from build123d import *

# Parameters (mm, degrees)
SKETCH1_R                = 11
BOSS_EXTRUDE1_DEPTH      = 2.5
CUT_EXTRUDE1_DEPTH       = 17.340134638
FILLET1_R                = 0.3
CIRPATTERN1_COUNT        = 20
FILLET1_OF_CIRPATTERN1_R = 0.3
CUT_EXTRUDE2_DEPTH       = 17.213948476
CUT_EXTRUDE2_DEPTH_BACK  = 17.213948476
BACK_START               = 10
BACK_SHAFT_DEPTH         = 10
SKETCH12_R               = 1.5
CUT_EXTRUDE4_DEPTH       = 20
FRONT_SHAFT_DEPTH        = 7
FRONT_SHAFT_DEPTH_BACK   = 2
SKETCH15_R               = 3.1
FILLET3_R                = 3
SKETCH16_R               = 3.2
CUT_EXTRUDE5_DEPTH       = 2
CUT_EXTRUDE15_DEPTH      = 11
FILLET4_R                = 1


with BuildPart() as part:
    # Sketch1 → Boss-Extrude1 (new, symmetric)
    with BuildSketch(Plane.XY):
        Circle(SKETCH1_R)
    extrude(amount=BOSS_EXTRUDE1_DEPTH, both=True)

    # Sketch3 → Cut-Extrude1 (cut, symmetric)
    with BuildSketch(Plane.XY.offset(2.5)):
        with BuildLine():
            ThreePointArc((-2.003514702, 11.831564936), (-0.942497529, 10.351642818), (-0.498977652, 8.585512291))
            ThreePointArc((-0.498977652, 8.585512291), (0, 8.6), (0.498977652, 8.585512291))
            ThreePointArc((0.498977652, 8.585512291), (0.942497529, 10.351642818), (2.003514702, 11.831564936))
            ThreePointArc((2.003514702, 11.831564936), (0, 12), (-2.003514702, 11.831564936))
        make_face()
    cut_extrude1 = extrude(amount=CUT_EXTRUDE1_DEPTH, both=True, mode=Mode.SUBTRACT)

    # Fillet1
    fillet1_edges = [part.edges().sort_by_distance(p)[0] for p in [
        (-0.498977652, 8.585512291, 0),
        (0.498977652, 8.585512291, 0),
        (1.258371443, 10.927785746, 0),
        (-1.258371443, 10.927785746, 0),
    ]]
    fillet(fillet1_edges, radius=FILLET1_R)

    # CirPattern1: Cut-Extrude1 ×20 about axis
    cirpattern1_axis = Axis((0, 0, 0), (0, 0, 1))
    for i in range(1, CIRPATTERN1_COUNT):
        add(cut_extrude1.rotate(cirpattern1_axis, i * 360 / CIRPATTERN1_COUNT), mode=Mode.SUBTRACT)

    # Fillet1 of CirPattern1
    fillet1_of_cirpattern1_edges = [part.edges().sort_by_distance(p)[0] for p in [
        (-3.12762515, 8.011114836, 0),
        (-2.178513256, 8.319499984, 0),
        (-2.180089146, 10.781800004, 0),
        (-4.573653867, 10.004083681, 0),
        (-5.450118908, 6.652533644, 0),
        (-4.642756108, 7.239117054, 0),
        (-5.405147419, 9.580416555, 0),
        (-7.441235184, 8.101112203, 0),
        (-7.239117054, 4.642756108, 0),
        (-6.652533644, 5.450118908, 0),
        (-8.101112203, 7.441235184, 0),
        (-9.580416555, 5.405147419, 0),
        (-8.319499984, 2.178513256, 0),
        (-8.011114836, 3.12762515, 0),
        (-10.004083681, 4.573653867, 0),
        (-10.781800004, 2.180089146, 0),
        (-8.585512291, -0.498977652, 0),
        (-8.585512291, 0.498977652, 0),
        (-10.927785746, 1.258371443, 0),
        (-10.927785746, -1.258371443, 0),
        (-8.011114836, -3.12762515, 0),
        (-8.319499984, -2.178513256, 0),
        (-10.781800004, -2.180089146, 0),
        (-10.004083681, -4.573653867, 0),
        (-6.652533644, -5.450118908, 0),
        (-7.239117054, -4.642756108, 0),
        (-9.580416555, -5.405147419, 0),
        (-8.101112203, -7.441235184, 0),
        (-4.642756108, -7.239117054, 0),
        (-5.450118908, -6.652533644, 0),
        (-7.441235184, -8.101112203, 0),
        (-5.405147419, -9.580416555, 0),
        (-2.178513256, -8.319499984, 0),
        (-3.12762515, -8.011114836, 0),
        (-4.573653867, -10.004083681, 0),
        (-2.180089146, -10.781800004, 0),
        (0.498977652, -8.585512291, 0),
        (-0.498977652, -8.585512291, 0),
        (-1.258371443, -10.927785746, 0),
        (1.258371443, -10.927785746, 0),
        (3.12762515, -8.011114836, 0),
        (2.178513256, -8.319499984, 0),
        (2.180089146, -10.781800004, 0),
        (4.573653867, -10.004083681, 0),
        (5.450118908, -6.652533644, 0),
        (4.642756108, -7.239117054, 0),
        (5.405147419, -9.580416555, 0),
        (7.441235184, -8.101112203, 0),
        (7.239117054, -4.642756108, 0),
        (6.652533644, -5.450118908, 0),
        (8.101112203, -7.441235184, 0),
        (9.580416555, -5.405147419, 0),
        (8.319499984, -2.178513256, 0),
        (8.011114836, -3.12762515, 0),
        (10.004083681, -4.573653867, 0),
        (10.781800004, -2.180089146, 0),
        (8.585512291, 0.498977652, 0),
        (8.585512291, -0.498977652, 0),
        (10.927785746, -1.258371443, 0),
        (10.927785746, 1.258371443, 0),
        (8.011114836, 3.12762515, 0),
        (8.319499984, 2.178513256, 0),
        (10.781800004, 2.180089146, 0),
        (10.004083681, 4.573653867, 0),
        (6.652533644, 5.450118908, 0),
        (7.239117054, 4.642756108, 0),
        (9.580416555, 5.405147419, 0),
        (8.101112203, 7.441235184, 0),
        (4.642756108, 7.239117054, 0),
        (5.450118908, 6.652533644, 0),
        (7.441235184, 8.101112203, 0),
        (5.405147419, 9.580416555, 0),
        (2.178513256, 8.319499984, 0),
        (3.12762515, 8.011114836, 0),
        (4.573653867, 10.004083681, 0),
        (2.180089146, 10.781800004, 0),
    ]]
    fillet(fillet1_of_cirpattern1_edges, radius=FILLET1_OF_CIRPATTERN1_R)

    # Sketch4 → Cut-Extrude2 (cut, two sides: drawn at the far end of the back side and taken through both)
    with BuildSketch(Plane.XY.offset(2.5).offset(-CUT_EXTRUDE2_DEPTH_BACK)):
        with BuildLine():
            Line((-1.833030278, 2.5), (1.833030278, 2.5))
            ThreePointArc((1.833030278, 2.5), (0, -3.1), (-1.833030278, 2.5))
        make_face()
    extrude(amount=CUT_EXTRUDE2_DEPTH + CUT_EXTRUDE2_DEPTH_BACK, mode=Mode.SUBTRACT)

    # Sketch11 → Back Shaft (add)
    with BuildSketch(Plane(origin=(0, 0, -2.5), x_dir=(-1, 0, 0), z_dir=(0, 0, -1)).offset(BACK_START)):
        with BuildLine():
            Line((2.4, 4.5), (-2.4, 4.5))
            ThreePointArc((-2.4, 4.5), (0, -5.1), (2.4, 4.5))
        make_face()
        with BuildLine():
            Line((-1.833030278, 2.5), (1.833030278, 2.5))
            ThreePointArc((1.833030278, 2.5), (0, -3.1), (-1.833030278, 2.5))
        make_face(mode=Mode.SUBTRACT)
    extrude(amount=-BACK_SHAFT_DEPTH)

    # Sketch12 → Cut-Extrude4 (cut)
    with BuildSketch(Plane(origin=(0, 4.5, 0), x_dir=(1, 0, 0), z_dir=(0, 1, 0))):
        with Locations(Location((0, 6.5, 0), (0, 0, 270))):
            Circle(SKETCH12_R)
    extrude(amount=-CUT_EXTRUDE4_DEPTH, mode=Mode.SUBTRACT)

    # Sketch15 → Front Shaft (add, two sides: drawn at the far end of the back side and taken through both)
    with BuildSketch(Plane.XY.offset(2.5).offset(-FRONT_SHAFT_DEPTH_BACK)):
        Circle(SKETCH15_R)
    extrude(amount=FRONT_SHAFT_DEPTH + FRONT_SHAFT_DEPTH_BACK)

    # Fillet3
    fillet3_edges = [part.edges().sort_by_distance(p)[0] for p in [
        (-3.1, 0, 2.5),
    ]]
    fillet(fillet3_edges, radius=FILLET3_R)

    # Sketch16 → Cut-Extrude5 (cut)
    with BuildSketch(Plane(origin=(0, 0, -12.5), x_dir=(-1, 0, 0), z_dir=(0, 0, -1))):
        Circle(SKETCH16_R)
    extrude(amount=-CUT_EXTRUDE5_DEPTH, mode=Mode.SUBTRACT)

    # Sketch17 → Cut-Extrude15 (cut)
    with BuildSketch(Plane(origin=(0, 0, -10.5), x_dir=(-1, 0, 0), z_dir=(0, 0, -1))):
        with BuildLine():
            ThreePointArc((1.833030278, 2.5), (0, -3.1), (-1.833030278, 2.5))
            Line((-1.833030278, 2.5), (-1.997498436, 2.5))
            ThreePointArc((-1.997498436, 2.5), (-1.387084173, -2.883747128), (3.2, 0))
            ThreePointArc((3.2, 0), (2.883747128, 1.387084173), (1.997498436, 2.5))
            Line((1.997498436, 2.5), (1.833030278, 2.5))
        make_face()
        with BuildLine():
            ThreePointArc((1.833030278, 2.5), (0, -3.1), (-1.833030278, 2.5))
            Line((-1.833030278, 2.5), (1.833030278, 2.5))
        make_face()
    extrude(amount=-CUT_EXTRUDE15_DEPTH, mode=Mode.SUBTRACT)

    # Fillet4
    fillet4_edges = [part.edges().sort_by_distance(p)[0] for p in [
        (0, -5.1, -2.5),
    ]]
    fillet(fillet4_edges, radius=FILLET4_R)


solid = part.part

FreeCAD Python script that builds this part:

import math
import FreeCAD as App
import Part
import Sketcher

V = App.Vector


def edges_at(feature, points):
    """Names of the edges that pass closest to the given points."""
    edges = feature.Shape.Edges
    near = lambda p: min(range(len(edges)), key=lambda i: edges[i].distToShape(Part.Vertex(*p))[0])
    return sorted({f"Edge{near(p) + 1}" for p in points})

doc = App.newDocument("Part")
body = doc.addObject("PartDesign::Body", "Body")

# Sketch on XY plane
sketch1 = body.newObject("Sketcher::SketchObject", "Sketch")
sketch1.AttachmentSupport = (doc.getObject("XY_Plane"), [""])
sketch1.MapMode = "FlatFace"
sketch1.addGeometry(Part.Circle(V(0, 0, 0), V(0, 0, 1), 11), False)
sketch1.addConstraint(Sketcher.Constraint("Coincident", 0, 3, -1, 1))
sketch1.addConstraint(Sketcher.Constraint("Diameter", 0, 22.0))
pad1 = body.newObject("PartDesign::Pad", "Pad")
pad1.Profile = sketch1
pad1.Length = 5
pad1.Midplane = True

# Sketch on XY plane
sketch2 = body.newObject("Sketcher::SketchObject", "Sketch001")
sketch2.AttachmentSupport = (doc.getObject("XY_Plane"), [""])
sketch2.MapMode = "FlatFace"
sketch2.AttachmentOffset = App.Placement(V(0, 0, 2.5), App.Rotation())
sketch2.addGeometry(Part.ArcOfCircle(Part.Circle(V(-5.4, 8.3, 0), V(0, 0, 1), 4.9), math.radians(3), math.radians(46)), False)
sketch2.addGeometry(Part.ArcOfCircle(Part.Circle(V(0, 0, 0), V(0, 0, 1), 8.6), math.radians(86.67), math.radians(93.33)), False)
sketch2.addGeometry(Part.ArcOfCircle(Part.Circle(V(5.4, 8.3, 0), V(0, 0, 1), 4.9), math.radians(134), math.radians(177)), False)
sketch2.addGeometry(Part.ArcOfCircle(Part.Circle(V(0, 0, 0), V(0, 0, 1), 12), math.radians(80.39), math.radians(99.61)), False)
sketch2.addConstraint(Sketcher.Constraint("Coincident", 0, 1, 1, 2))
sketch2.addConstraint(Sketcher.Constraint("Coincident", 1, 1, 2, 2))
sketch2.addConstraint(Sketcher.Constraint("Coincident", 2, 1, 3, 1))
sketch2.addConstraint(Sketcher.Constraint("Coincident", 3, 2, 0, 2))
sketch2.addConstraint(Sketcher.Constraint("Coincident", 1, 3, -1, 1))
sketch2.addConstraint(Sketcher.Constraint("Coincident", 3, 3, -1, 1))
sketch2.addConstraint(Sketcher.Constraint("Equal", 0, 2))
sketch2.addConstraint(Sketcher.Constraint("Symmetric", 0, 3, 2, 3, -2))
sketch2.addConstraint(Sketcher.Constraint("Radius", 3, 12.0))
sketch2.addConstraint(Sketcher.Constraint("Radius", 1, 8.6))
sketch2.addConstraint(Sketcher.Constraint("Radius", 0, 4.872055))
sketch2.addConstraint(Sketcher.Constraint("DistanceX", 0, 3, 2, 3, 10.72565))
sketch2.addConstraint(Sketcher.Constraint("DistanceY", 0, 3, 0, 1, 0.28268))
pocket1 = body.newObject("PartDesign::Pocket", "Pocket")
pocket1.Profile = sketch2
pocket1.Length = 34.680269
pocket1.Midplane = True
doc.recompute()

fillet = body.newObject("PartDesign::Fillet", "Fillet")
fillet.Base = (pocket1, edges_at(pocket1, [
    (-0.499, 8.586, 0),
    (0.499, 8.586, 0),
    (1.258, 10.928, 0),
    (-1.258, 10.928, 0),
]))
fillet.Radius = 0.3
doc.recompute()

polarpattern = body.newObject("PartDesign::PolarPattern", "PolarPattern")
polarpattern.Originals = [pocket1]
polarpattern.Axis = (doc.getObject("Z_Axis"), [""])
polarpattern.Angle = 360
polarpattern.Occurrences = 20
body.Tip = polarpattern
doc.recompute()

fillet2 = body.newObject("PartDesign::Fillet", "Fillet001")
fillet2.Base = (polarpattern, edges_at(polarpattern, [
    (-3.128, 8.011, 0),
    (-2.179, 8.319, 0),
    (-2.18, 10.782, 0),
    (-4.574, 10.004, 0),
    (-5.45, 6.653, 0),
    (-4.643, 7.239, 0),
    (-5.405, 9.58, 0),
    (-7.441, 8.101, 0),
    (-7.239, 4.643, 0),
    (-6.653, 5.45, 0),
    (-8.101, 7.441, 0),
    (-9.58, 5.405, 0),
    (-8.319, 2.179, 0),
    (-8.011, 3.128, 0),
    (-10.004, 4.574, 0),
    (-10.782, 2.18, 0),
    (-8.586, -0.499, 0),
    (-8.586, 0.499, 0),
    (-10.928, 1.258, 0),
    (-10.928, -1.258, 0),
    (-8.011, -3.128, 0),
    (-8.319, -2.179, 0),
    (-10.782, -2.18, 0),
    (-10.004, -4.574, 0),
    (-6.653, -5.45, 0),
    (-7.239, -4.643, 0),
    (-9.58, -5.405, 0),
    (-8.101, -7.441, 0),
    (-4.643, -7.239, 0),
    (-5.45, -6.653, 0),
    (-7.441, -8.101, 0),
    (-5.405, -9.58, 0),
    (-2.179, -8.319, 0),
    (-3.128, -8.011, 0),
    (-4.574, -10.004, 0),
    (-2.18, -10.782, 0),
    (0.499, -8.586, 0),
    (-0.499, -8.586, 0),
    (-1.258, -10.928, 0),
    (1.258, -10.928, 0),
    (3.128, -8.011, 0),
    (2.179, -8.319, 0),
    (2.18, -10.782, 0),
    (4.574, -10.004, 0),
    (5.45, -6.653, 0),
    (4.643, -7.239, 0),
    (5.405, -9.58, 0),
    (7.441, -8.101, 0),
    (7.239, -4.643, 0),
    (6.653, -5.45, 0),
    (8.101, -7.441, 0),
    (9.58, -5.405, 0),
    (8.319, -2.179, 0),
    (8.011, -3.128, 0),
    (10.004, -4.574, 0),
    (10.782, -2.18, 0),
    (8.586, 0.499, 0),
    (8.586, -0.499, 0),
    (10.928, -1.258, 0),
    (10.928, 1.258, 0),
    (8.011, 3.128, 0),
    (8.319, 2.179, 0),
    (10.782, 2.18, 0),
    (10.004, 4.574, 0),
    (6.653, 5.45, 0),
    (7.239, 4.643, 0),
    (9.58, 5.405, 0),
    (8.101, 7.441, 0),
    (4.643, 7.239, 0),
    (5.45, 6.653, 0),
    (7.441, 8.101, 0),
    (5.405, 9.58, 0),
    (2.179, 8.319, 0),
    (3.128, 8.011, 0),
    (4.574, 10.004, 0),
    (2.18, 10.782, 0),
]))
fillet2.Radius = 0.3

# Sketch on XY plane
sketch3 = body.newObject("Sketcher::SketchObject", "Sketch002")
sketch3.AttachmentSupport = (doc.getObject("XY_Plane"), [""])
sketch3.MapMode = "FlatFace"
sketch3.AttachmentOffset = App.Placement(V(0, 0, 2.5), App.Rotation())
sketch3.addGeometry(Part.LineSegment(V(1.8, 2.5, 0), V(-1.8, 2.5, 0)), False)
sketch3.addGeometry(Part.ArcOfCircle(Part.Circle(V(0, 0, 0), V(0, 0, 1), 3.1), math.radians(126), math.radians(414)), False)
sketch3.addConstraint(Sketcher.Constraint("Coincident", 0, 1, 1, 2))
sketch3.addConstraint(Sketcher.Constraint("Coincident", 1, 1, 0, 2))
sketch3.addConstraint(Sketcher.Constraint("Horizontal", 0))
sketch3.addConstraint(Sketcher.Constraint("Coincident", 1, 3, -1, 1))
sketch3.addConstraint(Sketcher.Constraint("Radius", 1, 3.1))
sketch3.addConstraint(Sketcher.Constraint("DistanceY", -1, 1, 0, 1, 2.5))
pocket2 = body.newObject("PartDesign::Pocket", "Pocket001")
pocket2.Profile = sketch3
pocket2.Type = "ThroughAll"
pocket2.Midplane = True

# Sketch on XY plane
sketch4 = body.newObject("Sketcher::SketchObject", "Sketch003")
sketch4.AttachmentSupport = (doc.getObject("XY_Plane"), [""])
sketch4.MapMode = "FlatFace"
sketch4.AttachmentOffset = App.Placement(V(0, 0, -12.5), App.Rotation())
sketch4.addGeometry(Part.LineSegment(V(-2.4, 4.5, 0), V(2.4, 4.5, 0)), False)
sketch4.addGeometry(Part.ArcOfCircle(Part.Circle(V(0, 0, 0), V(0, 0, 1), 5.1), math.radians(118), math.radians(422)), False)
sketch4.addGeometry(Part.ArcOfCircle(Part.Circle(V(0, 0, 0), V(0, 0, 1), 3.1), math.radians(126), math.radians(414)), False)
sketch4.addGeometry(Part.LineSegment(V(1.8, 2.5, 0), V(-1.8, 2.5, 0)), False)
sketch4.addConstraint(Sketcher.Constraint("Coincident", 0, 1, 1, 1))
sketch4.addConstraint(Sketcher.Constraint("Coincident", 1, 2, 0, 2))
sketch4.addConstraint(Sketcher.Constraint("Coincident", 2, 1, 3, 2))
sketch4.addConstraint(Sketcher.Constraint("Coincident", 3, 1, 2, 2))
sketch4.addConstraint(Sketcher.Constraint("Horizontal", 0))
sketch4.addConstraint(Sketcher.Constraint("Horizontal", 3))
sketch4.addConstraint(Sketcher.Constraint("Coincident", 1, 3, -1, 1))
sketch4.addConstraint(Sketcher.Constraint("Coincident", 2, 3, -1, 1))
sketch4.addConstraint(Sketcher.Constraint("Radius", 1, 5.1))
sketch4.addConstraint(Sketcher.Constraint("Radius", 2, 3.1))
sketch4.addConstraint(Sketcher.Constraint("DistanceX", 0, 1, 0, 2, 4.8))
sketch4.addConstraint(Sketcher.Constraint("DistanceY", 2, 1, 0, 1, 2.0))
pad2 = body.newObject("PartDesign::Pad", "Pad001")
pad2.Profile = sketch4
pad2.Length = 10

# Sketch on XZ plane
sketch5 = body.newObject("Sketcher::SketchObject", "Sketch004")
sketch5.AttachmentSupport = (doc.getObject("XZ_Plane"), [""])
sketch5.MapMode = "FlatFace"
sketch5.AttachmentOffset = App.Placement(V(0, 0, -4.5), App.Rotation())
sketch5.addGeometry(Part.Circle(V(0, -6.5, 0), V(0, 0, 1), 1.5), False)
sketch5.addConstraint(Sketcher.Constraint("PointOnObject", 0, 3, -2))
sketch5.addConstraint(Sketcher.Constraint("Diameter", 0, 3.0))
sketch5.addConstraint(Sketcher.Constraint("DistanceY", 0, 3, -1, 1, 6.5))
pocket3 = body.newObject("PartDesign::Pocket", "Pocket002")
pocket3.Profile = sketch5
pocket3.Length = 20
pocket3.Reversed = True

# Sketch on XY plane
sketch6 = body.newObject("Sketcher::SketchObject", "Sketch005")
sketch6.AttachmentSupport = (doc.getObject("XY_Plane"), [""])
sketch6.MapMode = "FlatFace"
sketch6.AttachmentOffset = App.Placement(V(0, 0, 2.5), App.Rotation())
sketch6.addGeometry(Part.Circle(V(0, 0, 0), V(0, 0, 1), 3.1), False)
sketch6.addConstraint(Sketcher.Constraint("Coincident", 0, 3, -1, 1))
sketch6.addConstraint(Sketcher.Constraint("Diameter", 0, 6.2))
pad3 = body.newObject("PartDesign::Pad", "Pad002")
pad3.Profile = sketch6
pad3.Type = "TwoLengths"
pad3.Length = 7
pad3.Length2 = 2
doc.recompute()

fillet3 = body.newObject("PartDesign::Fillet", "Fillet002")
fillet3.Base = (pad3, edges_at(pad3, [(-1.401, -2.765, 2.5)]))
fillet3.Radius = 3

# Sketch on XY plane
sketch7 = body.newObject("Sketcher::SketchObject", "Sketch006")
sketch7.AttachmentSupport = (doc.getObject("XY_Plane"), [""])
sketch7.MapMode = "FlatFace"
sketch7.AttachmentOffset = App.Placement(V(0, 0, -12.5), App.Rotation())
sketch7.addGeometry(Part.Circle(V(0, 0, 0), V(0, 0, 1), 3.2), False)
sketch7.addConstraint(Sketcher.Constraint("Coincident", 0, 3, -1, 1))
sketch7.addConstraint(Sketcher.Constraint("Diameter", 0, 6.4))
pocket4 = body.newObject("PartDesign::Pocket", "Pocket003")
pocket4.Profile = sketch7
pocket4.Length = 2
pocket4.Reversed = True

# Sketch on XY plane
sketch8 = body.newObject("Sketcher::SketchObject", "Sketch007")
sketch8.AttachmentSupport = (doc.getObject("XY_Plane"), [""])
sketch8.MapMode = "FlatFace"
sketch8.AttachmentOffset = App.Placement(V(0, 0, -10.5), App.Rotation())
sketch8.addGeometry(Part.ArcOfCircle(Part.Circle(V(0, 0, 0), V(0, 0, 1), 3.2), math.radians(180), math.radians(411)), False)
sketch8.addGeometry(Part.ArcOfCircle(Part.Circle(V(0, 0, 0), V(0, 0, 1), 3.2), math.radians(129), math.radians(180)), False)
sketch8.addGeometry(Part.LineSegment(V(-2, 2.5, 0), V(2, 2.5, 0)), False)
sketch8.addConstraint(Sketcher.Constraint("Tangent", 0, 1, 1, 2))
sketch8.addConstraint(Sketcher.Constraint("Coincident", 1, 1, 2, 1))
sketch8.addConstraint(Sketcher.Constraint("Coincident", 2, 2, 0, 2))
sketch8.addConstraint(Sketcher.Constraint("Horizontal", 2))
sketch8.addConstraint(Sketcher.Constraint("Coincident", 0, 3, -1, 1))
sketch8.addConstraint(Sketcher.Constraint("Equal", 0, 1))
sketch8.addConstraint(Sketcher.Constraint("PointOnObject", 0, 1, -1))
sketch8.addConstraint(Sketcher.Constraint("Radius", 0, 3.2))
sketch8.addConstraint(Sketcher.Constraint("DistanceY", -1, 1, 1, 1, 2.5))
pocket5 = body.newObject("PartDesign::Pocket", "Pocket004")
pocket5.Profile = sketch8
pocket5.Length = 11
pocket5.Reversed = True
doc.recompute()

fillet4 = body.newObject("PartDesign::Fillet", "Fillet003")
fillet4.Base = (pocket5, edges_at(pocket5, [(0, -5.1, -2.5)]))
fillet4.Radius = 1

doc.recompute()
